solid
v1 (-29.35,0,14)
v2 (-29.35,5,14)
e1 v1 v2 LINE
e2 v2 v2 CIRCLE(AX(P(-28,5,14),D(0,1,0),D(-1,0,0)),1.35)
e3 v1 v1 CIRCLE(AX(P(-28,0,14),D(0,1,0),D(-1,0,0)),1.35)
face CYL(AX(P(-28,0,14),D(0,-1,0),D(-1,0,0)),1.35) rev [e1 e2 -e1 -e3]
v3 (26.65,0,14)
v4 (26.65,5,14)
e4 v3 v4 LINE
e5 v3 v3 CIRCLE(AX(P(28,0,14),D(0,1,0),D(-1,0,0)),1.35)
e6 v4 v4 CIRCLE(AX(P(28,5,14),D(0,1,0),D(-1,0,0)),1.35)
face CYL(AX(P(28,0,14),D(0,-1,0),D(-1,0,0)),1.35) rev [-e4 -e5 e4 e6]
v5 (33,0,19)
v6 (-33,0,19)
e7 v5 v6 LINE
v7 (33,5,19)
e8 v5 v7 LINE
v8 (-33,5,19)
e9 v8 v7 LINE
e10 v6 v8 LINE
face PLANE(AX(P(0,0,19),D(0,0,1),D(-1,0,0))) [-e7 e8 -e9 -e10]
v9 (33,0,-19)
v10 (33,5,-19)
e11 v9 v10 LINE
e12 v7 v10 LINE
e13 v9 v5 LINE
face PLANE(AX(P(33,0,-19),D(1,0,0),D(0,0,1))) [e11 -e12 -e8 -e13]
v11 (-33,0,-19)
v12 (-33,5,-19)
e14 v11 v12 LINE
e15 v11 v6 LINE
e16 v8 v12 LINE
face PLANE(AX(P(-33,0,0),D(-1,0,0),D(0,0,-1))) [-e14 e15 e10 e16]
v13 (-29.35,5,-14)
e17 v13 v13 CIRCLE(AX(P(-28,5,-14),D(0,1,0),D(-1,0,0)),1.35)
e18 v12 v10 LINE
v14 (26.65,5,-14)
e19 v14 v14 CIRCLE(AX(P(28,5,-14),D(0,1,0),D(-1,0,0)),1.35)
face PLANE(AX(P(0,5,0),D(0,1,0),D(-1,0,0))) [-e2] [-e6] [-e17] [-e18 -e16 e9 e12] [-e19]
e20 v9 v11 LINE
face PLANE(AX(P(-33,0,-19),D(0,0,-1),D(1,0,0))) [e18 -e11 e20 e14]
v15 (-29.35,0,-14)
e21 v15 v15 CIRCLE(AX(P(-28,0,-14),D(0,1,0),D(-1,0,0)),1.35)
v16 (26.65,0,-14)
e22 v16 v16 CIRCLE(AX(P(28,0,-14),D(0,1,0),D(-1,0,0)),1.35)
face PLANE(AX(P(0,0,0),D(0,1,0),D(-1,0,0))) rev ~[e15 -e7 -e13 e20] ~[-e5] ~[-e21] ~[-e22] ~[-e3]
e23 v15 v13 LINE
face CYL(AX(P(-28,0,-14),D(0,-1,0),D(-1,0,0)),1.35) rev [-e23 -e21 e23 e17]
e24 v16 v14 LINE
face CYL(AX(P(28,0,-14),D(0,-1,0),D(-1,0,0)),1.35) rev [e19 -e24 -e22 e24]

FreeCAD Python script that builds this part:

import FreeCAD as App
import Part
import Sketcher

V = App.Vector


def add_polygon(sketch, points):
    """Adds a closed chain of lines whose ends are joined by coincident constraints."""
    first, n = sketch.GeometryCount, len(points)
    for a, b in zip(points, points[1:] + points[:1]):
        sketch.addGeometry(Part.LineSegment(App.Vector(*a, 0), App.Vector(*b, 0)), False)
    for i in range(n):
        sketch.addConstraint(Sketcher.Constraint("Coincident", first + i, 2, first + (i + 1) % n, 1))

doc = App.newDocument("Part")
body = doc.addObject("PartDesign::Body", "Body")

sketch1 = body.newObject("Sketcher::SketchObject", "Sketch")
sketch1.AttachmentSupport = (doc.getObject("XZ_Plane"), [""])
sketch1.MapMode = "FlatFace"
add_polygon(sketch1, [(-33, -19), (-33, 19), (33, 19), (33, -19)])
sketch1.addGeometry(Part.Circle(V(-28, -14, 0), V(0, 0, 1), 1.4), False)
sketch1.addGeometry(Part.Circle(V(28, -14, 0), V(0, 0, 1), 1.4), False)
sketch1.addGeometry(Part.Circle(V(-28, 14, 0), V(0, 0, 1), 1.4), False)
sketch1.addGeometry(Part.Circle(V(28, 14, 0), V(0, 0, 1), 1.4), False)
sketch1.addConstraint([
    Sketcher.Constraint("Vertical", 0),
    Sketcher.Constraint("Horizontal", 1),
    Sketcher.Constraint("Vertical", 2),
    Sketcher.Constraint("Horizontal", 3),
    Sketcher.Constraint("Equal", 4, 5),
    Sketcher.Constraint("Equal", 5, 6),
    Sketcher.Constraint("Equal", 6, 7),
    Sketcher.Constraint("Symmetric", 5, 3, 6, 3, -1, 1),
    Sketcher.Constraint("Symmetric", 4, 3, 7, 3, -1, 1),
    Sketcher.Constraint("Symmetric", 0, 2, 2, 2, -1, 1),
    Sketcher.Constraint("Symmetric", 4, 3, 5, 3, -2),
    Sketcher.Constraint("Diameter", 4, 2.7),
    Sketcher.Constraint("DistanceX", 1, 1, 1, 2, 66.0),
    Sketcher.Constraint("DistanceY", 0, 1, 0, 2, 38.0),
    Sketcher.Constraint("DistanceX", 0, 2, 6, 3, 5.0),
    Sketcher.Constraint("DistanceY", 6, 3, 0, 2, 5.0),
])
pad1 = body.newObject("PartDesign::Pad", "Pad")
pad1.Profile = sketch1
pad1.Length = 5
pad1.Reversed = True

doc.recompute()
